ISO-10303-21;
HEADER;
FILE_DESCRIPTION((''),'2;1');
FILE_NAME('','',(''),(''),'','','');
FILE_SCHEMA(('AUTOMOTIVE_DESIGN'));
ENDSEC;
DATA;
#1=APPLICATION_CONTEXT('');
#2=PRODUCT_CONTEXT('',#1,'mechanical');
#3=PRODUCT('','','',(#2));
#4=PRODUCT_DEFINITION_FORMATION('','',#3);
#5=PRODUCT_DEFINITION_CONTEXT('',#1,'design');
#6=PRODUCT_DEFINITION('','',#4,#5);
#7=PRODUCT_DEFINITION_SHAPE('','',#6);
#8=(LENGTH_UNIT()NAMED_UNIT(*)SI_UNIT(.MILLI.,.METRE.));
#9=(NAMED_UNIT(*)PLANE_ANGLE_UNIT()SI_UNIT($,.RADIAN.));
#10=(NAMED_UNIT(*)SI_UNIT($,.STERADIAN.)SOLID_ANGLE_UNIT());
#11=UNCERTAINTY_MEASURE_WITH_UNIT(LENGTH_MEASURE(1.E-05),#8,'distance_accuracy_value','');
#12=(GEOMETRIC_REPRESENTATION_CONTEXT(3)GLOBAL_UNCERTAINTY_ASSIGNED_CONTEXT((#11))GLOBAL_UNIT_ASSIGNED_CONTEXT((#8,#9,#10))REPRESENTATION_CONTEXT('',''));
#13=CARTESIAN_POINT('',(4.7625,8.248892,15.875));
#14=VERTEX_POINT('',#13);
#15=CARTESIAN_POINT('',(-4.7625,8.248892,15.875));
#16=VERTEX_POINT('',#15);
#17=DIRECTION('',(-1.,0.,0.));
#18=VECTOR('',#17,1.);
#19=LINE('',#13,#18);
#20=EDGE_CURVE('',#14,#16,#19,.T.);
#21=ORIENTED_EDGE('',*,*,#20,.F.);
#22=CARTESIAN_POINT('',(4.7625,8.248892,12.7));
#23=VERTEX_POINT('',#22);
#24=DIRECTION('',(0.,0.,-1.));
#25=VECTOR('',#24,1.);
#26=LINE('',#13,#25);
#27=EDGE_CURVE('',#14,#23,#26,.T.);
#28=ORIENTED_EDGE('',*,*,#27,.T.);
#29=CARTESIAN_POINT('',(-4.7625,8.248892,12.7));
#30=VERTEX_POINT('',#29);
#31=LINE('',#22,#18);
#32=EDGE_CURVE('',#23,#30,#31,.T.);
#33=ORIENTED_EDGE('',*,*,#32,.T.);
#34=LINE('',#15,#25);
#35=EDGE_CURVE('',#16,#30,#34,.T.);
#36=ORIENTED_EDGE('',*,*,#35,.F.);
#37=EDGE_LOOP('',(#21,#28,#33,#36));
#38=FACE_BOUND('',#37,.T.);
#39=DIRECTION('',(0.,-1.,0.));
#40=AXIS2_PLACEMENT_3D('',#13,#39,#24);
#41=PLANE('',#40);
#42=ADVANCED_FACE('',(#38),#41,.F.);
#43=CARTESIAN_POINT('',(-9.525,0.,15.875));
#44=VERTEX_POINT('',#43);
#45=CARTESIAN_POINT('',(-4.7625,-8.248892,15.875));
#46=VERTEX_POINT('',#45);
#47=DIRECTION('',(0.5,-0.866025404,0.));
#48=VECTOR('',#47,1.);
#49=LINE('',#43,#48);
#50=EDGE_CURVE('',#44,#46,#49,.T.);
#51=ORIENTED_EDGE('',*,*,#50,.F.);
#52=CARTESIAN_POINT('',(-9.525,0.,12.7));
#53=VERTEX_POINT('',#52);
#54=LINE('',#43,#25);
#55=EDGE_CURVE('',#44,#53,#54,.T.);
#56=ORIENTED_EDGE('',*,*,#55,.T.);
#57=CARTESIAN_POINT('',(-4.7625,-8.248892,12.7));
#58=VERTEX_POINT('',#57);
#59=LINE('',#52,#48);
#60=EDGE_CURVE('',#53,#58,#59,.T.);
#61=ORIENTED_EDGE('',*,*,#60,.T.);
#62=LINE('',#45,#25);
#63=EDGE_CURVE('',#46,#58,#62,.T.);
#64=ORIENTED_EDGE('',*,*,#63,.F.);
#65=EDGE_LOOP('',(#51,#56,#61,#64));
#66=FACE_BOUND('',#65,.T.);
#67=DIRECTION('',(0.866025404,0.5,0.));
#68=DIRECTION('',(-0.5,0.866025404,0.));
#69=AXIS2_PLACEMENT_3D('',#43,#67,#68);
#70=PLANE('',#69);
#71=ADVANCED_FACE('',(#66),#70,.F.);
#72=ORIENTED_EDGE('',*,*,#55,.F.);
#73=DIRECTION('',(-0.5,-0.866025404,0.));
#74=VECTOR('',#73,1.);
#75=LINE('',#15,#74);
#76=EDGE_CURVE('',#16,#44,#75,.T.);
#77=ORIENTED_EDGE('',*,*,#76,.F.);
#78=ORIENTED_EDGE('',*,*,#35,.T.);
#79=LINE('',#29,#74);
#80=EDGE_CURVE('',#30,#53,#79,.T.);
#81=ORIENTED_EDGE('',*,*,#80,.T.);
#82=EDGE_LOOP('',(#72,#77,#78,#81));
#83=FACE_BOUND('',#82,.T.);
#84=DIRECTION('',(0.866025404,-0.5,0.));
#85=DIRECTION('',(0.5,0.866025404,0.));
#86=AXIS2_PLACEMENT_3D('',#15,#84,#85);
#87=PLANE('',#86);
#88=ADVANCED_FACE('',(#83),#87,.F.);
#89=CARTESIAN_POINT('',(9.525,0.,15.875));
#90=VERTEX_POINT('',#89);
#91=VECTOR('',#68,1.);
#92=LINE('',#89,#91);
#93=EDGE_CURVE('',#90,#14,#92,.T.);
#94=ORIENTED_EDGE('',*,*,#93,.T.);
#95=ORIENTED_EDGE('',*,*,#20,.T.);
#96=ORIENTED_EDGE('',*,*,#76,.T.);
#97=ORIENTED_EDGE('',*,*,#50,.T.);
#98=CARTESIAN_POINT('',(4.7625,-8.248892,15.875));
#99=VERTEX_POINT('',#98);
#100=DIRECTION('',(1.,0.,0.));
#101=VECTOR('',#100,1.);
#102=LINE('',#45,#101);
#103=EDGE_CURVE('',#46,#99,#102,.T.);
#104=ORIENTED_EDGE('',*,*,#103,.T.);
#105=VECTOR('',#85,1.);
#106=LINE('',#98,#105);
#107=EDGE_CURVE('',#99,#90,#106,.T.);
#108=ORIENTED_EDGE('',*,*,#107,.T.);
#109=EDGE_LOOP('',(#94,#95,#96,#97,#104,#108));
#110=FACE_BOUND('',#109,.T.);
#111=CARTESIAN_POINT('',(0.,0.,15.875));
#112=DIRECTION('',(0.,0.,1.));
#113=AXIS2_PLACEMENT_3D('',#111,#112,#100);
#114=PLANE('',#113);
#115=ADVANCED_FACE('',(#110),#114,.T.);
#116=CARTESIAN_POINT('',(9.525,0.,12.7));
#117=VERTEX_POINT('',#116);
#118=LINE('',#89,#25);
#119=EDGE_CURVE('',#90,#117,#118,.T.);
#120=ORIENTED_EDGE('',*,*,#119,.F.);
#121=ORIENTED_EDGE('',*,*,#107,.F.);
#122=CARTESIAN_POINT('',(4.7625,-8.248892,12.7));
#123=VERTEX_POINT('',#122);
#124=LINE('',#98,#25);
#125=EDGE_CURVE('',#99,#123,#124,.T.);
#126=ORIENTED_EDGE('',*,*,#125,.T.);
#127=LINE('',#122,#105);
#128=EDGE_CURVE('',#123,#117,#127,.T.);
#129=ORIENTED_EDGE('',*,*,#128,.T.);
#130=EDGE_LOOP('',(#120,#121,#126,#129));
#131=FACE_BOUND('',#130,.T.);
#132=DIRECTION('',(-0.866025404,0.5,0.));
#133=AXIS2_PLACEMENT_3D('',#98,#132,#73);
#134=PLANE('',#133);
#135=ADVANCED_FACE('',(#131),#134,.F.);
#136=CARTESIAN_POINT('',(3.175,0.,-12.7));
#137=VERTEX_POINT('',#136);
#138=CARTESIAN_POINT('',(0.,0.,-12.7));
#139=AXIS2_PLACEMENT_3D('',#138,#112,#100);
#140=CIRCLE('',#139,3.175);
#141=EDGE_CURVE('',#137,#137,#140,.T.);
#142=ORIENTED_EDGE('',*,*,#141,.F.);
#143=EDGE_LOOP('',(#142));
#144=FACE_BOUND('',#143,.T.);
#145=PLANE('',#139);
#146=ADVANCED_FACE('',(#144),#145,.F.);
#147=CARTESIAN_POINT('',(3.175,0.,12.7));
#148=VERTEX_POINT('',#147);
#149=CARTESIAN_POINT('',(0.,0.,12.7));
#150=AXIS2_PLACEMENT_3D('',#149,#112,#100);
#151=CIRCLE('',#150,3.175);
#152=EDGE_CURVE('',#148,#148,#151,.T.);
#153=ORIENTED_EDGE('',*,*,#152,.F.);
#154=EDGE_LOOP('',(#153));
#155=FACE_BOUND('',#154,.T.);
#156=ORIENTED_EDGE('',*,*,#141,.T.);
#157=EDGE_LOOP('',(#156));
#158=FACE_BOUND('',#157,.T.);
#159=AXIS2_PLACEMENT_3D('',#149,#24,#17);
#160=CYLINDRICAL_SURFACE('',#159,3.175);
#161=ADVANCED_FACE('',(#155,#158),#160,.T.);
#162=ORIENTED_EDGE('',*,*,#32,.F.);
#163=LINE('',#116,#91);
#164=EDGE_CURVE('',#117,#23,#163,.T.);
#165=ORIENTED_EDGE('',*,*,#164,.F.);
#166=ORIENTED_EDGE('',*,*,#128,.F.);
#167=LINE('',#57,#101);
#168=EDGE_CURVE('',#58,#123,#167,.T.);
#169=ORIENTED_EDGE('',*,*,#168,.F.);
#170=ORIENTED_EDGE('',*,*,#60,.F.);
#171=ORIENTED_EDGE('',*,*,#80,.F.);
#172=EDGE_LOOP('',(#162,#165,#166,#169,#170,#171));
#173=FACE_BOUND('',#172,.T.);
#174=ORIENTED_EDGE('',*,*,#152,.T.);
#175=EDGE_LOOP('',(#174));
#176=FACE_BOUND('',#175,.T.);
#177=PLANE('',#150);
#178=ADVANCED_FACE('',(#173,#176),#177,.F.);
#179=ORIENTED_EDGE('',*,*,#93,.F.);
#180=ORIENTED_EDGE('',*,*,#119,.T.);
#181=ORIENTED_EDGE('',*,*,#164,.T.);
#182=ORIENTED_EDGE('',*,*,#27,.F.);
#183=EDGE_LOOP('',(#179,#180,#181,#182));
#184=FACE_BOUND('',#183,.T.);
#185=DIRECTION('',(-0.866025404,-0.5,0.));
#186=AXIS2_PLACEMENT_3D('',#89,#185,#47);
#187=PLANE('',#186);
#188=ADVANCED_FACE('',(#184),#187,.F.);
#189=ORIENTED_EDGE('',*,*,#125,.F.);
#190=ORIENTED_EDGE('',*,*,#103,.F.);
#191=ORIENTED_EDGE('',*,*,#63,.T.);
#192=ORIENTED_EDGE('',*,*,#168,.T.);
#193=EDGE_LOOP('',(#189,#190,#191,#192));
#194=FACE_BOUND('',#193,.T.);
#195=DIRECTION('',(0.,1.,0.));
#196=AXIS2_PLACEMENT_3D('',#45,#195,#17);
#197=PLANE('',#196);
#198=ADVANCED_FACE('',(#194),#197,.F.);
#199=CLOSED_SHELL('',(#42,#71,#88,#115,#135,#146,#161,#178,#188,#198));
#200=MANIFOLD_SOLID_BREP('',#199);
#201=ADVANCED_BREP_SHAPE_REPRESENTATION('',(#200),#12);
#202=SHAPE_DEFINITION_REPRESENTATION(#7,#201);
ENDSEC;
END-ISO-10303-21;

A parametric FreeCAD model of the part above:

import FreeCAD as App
import Part
import Sketcher
from FreeCAD import Vector
Q = App.Units.Quantity

doc = App.newDocument("Part")
body = doc.addObject("PartDesign::Body", "Body")

# Sketch on XY plane
sketch1 = body.newObject("Sketcher::SketchObject", "Sketch")
sketch1.AttachmentSupport = (doc.getObject("XY_Plane"), [""])
sketch1.MapMode = "FlatFace"
sketch1.addGeometry(Part.Circle(Vector(0, 0, 0), Vector(0, 0, 1), 3.175), False)
sketch1.addConstraint([
    Sketcher.Constraint("Coincident", 0, 3, -1, 1),
    Sketcher.Constraint("Diameter", 0, Q("0.25 in")),
])
pad1 = body.newObject("PartDesign::Pad", "Pad")
pad1.Profile = sketch1
pad1.Length = Q("1 in")
pad1.Midplane = True

# Sketch on XY plane
sketch2 = body.newObject("Sketcher::SketchObject", "Sketch001")
sketch2.AttachmentSupport = (doc.getObject("XY_Plane"), [""])
sketch2.MapMode = "FlatFace"
sketch2.AttachmentOffset = App.Placement(Vector(0, 0, 0.5 * 25.4), App.Rotation())
sketch2.addGeometry([
    Part.LineSegment(Vector(9.525, 0, 0), Vector(4.7625, 8.248892, 0)),  # 0
    Part.LineSegment(Vector(4.7625, 8.248892, 0), Vector(-4.7625, 8.248892, 0)),  # 1
    Part.LineSegment(Vector(-4.7625, 8.248892, 0), Vector(-9.525, 0, 0)),  # 2
    Part.LineSegment(Vector(-9.525, 0, 0), Vector(-4.7625, -8.248892, 0)),  # 3
    Part.LineSegment(Vector(-4.7625, -8.248892, 0), Vector(4.7625, -8.248892, 0)),  # 4
    Part.LineSegment(Vector(4.7625, -8.248892, 0), Vector(9.525, 0, 0)),  # 5
], False)
sketch2.addConstraint([
    Sketcher.Constraint("Coincident", 0, 2, 1, 1),
    Sketcher.Constraint("Coincident", 1, 2, 2, 1),
    Sketcher.Constraint("Coincident", 2, 2, 3, 1),
    Sketcher.Constraint("Coincident", 3, 2, 4, 1),
    Sketcher.Constraint("Coincident", 4, 2, 5, 1),
    Sketcher.Constraint("Coincident", 5, 2, 0, 1),
    Sketcher.Constraint("Horizontal", 1),
    Sketcher.Constraint("Horizontal", 4),
    Sketcher.Constraint("Symmetric", 0, 2, 3, 2, -1, 1),
    Sketcher.Constraint("Symmetric", 2, 2, 5, 2, -1, 1),
    Sketcher.Constraint("PointOnObject", 2, 2, -1),
    Sketcher.Constraint("Parallel", 2, 5),
    Sketcher.Constraint("Vertical", 1, 2, 3, 2),
    Sketcher.Constraint("Angle", 0, Q("120 deg")),
    Sketcher.Constraint("DistanceX", 1, 2, 1, 1, Q("0.375 in")),
    Sketcher.Constraint("DistanceX", 2, 2, 5, 2, Q("0.75 in")),
])
pad2 = body.newObject("PartDesign::Pad", "Pad001")
pad2.Profile = sketch2
pad2.Length = Q("0.125 in")

doc.recompute()
